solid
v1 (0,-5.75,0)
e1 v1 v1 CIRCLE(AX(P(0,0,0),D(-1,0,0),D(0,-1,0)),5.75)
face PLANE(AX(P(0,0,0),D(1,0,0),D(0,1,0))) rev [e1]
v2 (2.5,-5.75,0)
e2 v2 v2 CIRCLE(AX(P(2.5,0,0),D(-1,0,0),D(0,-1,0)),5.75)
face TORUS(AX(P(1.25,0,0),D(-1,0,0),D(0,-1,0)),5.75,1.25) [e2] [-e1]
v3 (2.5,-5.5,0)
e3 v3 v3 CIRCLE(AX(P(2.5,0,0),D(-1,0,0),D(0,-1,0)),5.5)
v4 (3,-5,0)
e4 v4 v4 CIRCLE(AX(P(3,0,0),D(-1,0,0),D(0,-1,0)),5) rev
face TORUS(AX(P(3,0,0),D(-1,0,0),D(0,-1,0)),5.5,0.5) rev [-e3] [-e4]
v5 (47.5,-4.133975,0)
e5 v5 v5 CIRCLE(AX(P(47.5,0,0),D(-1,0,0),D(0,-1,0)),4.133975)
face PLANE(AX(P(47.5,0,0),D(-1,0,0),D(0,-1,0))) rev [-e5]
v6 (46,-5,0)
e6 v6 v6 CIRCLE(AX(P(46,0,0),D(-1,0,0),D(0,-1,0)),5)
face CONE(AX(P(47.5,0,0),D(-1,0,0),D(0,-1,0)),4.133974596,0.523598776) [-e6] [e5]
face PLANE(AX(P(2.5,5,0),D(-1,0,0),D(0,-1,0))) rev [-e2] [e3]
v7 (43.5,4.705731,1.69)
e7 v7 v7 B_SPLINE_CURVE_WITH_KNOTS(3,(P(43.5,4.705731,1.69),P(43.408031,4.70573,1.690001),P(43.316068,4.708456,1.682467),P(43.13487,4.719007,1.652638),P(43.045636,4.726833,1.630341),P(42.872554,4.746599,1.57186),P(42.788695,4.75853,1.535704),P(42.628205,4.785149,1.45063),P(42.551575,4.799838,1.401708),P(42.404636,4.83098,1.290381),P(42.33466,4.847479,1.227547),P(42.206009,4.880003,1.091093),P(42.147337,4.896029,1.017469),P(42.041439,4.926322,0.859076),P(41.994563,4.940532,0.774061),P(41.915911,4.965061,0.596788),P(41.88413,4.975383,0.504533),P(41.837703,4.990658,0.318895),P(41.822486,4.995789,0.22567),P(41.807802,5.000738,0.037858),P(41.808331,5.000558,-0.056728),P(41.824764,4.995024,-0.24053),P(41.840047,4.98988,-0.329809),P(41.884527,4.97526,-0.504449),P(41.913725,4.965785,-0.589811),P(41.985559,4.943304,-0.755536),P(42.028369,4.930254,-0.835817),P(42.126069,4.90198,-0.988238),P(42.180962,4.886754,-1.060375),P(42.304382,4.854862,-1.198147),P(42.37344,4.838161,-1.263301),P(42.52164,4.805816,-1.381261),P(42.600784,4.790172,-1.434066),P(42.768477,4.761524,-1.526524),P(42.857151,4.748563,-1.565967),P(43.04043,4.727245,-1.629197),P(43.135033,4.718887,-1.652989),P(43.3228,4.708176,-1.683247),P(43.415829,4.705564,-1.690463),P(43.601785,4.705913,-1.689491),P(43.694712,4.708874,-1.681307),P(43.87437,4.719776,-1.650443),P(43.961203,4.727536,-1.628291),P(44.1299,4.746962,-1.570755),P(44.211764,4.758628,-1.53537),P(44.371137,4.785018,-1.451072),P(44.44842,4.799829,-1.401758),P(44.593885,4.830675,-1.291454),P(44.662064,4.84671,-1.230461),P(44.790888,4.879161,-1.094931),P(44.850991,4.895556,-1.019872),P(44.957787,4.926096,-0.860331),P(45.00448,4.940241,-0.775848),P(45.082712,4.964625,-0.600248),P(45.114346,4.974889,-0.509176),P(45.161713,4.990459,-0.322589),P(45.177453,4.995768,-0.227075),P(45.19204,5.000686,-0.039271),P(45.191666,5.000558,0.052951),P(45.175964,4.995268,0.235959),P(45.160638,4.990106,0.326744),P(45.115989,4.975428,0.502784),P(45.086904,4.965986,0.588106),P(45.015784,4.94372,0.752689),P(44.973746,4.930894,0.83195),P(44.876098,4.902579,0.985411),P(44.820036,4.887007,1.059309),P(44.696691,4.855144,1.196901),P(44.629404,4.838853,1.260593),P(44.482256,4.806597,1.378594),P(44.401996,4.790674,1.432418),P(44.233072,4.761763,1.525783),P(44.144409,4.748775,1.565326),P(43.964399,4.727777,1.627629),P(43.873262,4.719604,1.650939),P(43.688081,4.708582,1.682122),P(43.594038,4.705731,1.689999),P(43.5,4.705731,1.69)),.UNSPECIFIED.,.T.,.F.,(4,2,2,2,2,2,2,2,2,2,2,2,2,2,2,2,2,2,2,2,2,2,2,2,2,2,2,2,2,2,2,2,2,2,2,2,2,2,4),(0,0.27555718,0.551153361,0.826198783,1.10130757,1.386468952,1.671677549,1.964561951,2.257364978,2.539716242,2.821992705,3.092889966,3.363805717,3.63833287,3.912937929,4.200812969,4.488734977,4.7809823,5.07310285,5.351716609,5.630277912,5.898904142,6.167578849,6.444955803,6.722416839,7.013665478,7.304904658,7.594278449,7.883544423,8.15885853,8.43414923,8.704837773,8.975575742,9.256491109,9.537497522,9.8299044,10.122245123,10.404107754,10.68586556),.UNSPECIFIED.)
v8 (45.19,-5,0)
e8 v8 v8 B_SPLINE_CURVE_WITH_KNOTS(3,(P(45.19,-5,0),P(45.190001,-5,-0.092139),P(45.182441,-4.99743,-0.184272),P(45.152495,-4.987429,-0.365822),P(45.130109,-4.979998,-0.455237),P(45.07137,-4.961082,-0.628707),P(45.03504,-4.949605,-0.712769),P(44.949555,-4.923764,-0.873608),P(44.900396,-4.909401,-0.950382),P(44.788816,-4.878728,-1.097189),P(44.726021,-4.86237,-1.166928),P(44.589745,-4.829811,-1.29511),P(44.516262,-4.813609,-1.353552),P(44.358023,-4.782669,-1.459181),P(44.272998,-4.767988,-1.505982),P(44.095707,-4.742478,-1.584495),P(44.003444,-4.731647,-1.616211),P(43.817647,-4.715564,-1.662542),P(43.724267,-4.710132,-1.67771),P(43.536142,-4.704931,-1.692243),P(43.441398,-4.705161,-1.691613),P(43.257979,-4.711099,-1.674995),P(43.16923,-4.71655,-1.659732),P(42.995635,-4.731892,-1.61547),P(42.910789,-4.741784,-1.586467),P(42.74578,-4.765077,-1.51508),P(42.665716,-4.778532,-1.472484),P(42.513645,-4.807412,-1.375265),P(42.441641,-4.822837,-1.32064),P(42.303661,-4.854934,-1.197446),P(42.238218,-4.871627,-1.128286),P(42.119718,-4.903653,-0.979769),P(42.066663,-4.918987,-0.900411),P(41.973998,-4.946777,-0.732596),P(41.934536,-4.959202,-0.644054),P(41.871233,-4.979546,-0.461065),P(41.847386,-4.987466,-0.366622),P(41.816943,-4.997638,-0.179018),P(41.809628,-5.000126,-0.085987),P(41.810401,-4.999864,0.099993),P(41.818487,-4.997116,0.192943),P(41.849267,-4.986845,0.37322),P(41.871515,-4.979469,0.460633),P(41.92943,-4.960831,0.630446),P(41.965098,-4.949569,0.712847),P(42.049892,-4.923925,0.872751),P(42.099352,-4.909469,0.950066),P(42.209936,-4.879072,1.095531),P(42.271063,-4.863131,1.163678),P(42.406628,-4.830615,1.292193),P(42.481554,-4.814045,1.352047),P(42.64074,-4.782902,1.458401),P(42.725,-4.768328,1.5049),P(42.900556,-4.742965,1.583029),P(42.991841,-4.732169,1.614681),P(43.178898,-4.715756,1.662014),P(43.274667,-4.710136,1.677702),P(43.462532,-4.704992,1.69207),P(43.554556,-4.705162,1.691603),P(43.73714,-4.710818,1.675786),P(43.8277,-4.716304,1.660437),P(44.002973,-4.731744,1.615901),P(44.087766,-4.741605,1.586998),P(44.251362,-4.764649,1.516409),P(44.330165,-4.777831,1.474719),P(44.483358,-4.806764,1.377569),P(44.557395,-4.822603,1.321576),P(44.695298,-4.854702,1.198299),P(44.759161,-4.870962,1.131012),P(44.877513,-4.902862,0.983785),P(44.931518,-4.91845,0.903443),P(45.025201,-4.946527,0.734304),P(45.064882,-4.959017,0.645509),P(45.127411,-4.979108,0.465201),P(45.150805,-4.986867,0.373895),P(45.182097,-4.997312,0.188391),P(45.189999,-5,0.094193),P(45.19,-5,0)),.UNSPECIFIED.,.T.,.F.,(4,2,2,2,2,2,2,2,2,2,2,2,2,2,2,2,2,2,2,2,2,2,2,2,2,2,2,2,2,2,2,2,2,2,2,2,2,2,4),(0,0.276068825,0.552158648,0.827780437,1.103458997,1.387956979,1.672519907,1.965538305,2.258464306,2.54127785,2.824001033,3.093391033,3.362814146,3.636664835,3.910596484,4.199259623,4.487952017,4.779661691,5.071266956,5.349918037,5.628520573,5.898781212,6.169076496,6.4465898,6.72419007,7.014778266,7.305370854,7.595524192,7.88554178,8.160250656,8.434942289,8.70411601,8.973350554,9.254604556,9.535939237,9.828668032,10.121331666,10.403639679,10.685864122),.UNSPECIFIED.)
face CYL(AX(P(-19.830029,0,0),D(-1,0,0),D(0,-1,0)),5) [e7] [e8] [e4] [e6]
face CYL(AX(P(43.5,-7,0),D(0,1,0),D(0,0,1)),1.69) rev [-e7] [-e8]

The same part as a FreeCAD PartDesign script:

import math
import FreeCAD as App
import Part
import Sketcher

V = App.Vector
Q = App.Units.Quantity


def edges_at(feature, points):
    """Names of the edges that pass closest to the given points."""
    edges = feature.Shape.Edges
    near = lambda p: min(range(len(edges)), key=lambda i: edges[i].distToShape(Part.Vertex(*p))[0])
    return sorted({f"Edge{near(p) + 1}" for p in points})

doc = App.newDocument("Part")
body = doc.addObject("PartDesign::Body", "Body")

# Sketch on XY plane
sketch1 = body.newObject("Sketcher::SketchObject", "Sketch")
sketch1.AttachmentSupport = (doc.getObject("XY_Plane"), [""])
sketch1.MapMode = "FlatFace"
sketch1.addGeometry([
    Part.LineSegment(V(0, 0, 0), V(47.5, 0, 0)),  # 0
    Part.LineSegment(V(47.5, 0, 0), V(47.5, 4.1, 0)),  # 1
    Part.LineSegment(V(47.5, 4.1, 0), V(46, 5, 0)),  # 2
    Part.LineSegment(V(46, 5, 0), V(2.5, 5, 0)),  # 3
    Part.LineSegment(V(2.5, 5, 0), V(2.5, 5.8, 0)),  # 4
    Part.ArcOfCircle(Part.Circle(V(1.2, 5.8, 0), V(0, 0, 1), 1.2), math.radians(0), math.radians(180)),  # 5
    Part.LineSegment(V(0, 5.8, 0), V(0, 0, 0)),  # 6
], False)
sketch1.addConstraint([
    Sketcher.Constraint("Coincident", 0, 2, 1, 1),
    Sketcher.Constraint("Coincident", 1, 2, 2, 1),
    Sketcher.Constraint("Coincident", 2, 2, 3, 1),
    Sketcher.Constraint("Coincident", 3, 2, 4, 1),
    Sketcher.Constraint("Tangent", 4, 2, 5, 1),
    Sketcher.Constraint("Tangent", 5, 2, 6, 1),
    Sketcher.Constraint("Coincident", 6, 2, 0, 1),
    Sketcher.Constraint("Horizontal", 0),
    Sketcher.Constraint("Vertical", 1),
    Sketcher.Constraint("Horizontal", 3),
    Sketcher.Constraint("Vertical", 4),
    Sketcher.Constraint("Vertical", 6),
    Sketcher.Constraint("Coincident", 6, 2, -1, 1),
    Sketcher.Constraint("Angle", 2, Q("150 deg")),
    Sketcher.Constraint("Radius", 5, 1.25),
    Sketcher.Constraint("DistanceX", 0, 1, 0, 2, 47.5),
    Sketcher.Constraint("DistanceX", 3, 2, 3, 1, 43.5),
    Sketcher.Constraint("DistanceY", -1, 1, 2, 2, 5.0),
    Sketcher.Constraint("DistanceY", 4, 1, 4, 2, 0.75),
])
revolution = body.newObject("PartDesign::Revolution", "Revolution")
revolution.Profile = sketch1
revolution.ReferenceAxis = (sketch1, ["H_Axis"])
revolution.Angle = 360
doc.recompute()

fillet = body.newObject("PartDesign::Fillet", "Fillet")
fillet.Base = (revolution, edges_at(revolution, [(2.5, 5, 0)]))
fillet.Radius = 0.5

# Sketch on XZ plane
sketch2 = body.newObject("Sketcher::SketchObject", "Sketch001")
sketch2.AttachmentSupport = (doc.getObject("XZ_Plane"), [""])
sketch2.MapMode = "FlatFace"
sketch2.addGeometry(Part.Circle(V(43.5, 0, 0), V(0, 0, 1), 1.7), False)
sketch2.addConstraint([
    Sketcher.Constraint("PointOnObject", 0, 3, -1),
    Sketcher.Constraint("Diameter", 0, 3.38),
    Sketcher.Constraint("DistanceX", -1, 1, 0, 3, 43.5),
])
pocket1 = body.newObject("PartDesign::Pocket", "Pocket")
pocket1.Profile = sketch2
pocket1.Type = "ThroughAll"
pocket1.Midplane = True

doc.recompute()
